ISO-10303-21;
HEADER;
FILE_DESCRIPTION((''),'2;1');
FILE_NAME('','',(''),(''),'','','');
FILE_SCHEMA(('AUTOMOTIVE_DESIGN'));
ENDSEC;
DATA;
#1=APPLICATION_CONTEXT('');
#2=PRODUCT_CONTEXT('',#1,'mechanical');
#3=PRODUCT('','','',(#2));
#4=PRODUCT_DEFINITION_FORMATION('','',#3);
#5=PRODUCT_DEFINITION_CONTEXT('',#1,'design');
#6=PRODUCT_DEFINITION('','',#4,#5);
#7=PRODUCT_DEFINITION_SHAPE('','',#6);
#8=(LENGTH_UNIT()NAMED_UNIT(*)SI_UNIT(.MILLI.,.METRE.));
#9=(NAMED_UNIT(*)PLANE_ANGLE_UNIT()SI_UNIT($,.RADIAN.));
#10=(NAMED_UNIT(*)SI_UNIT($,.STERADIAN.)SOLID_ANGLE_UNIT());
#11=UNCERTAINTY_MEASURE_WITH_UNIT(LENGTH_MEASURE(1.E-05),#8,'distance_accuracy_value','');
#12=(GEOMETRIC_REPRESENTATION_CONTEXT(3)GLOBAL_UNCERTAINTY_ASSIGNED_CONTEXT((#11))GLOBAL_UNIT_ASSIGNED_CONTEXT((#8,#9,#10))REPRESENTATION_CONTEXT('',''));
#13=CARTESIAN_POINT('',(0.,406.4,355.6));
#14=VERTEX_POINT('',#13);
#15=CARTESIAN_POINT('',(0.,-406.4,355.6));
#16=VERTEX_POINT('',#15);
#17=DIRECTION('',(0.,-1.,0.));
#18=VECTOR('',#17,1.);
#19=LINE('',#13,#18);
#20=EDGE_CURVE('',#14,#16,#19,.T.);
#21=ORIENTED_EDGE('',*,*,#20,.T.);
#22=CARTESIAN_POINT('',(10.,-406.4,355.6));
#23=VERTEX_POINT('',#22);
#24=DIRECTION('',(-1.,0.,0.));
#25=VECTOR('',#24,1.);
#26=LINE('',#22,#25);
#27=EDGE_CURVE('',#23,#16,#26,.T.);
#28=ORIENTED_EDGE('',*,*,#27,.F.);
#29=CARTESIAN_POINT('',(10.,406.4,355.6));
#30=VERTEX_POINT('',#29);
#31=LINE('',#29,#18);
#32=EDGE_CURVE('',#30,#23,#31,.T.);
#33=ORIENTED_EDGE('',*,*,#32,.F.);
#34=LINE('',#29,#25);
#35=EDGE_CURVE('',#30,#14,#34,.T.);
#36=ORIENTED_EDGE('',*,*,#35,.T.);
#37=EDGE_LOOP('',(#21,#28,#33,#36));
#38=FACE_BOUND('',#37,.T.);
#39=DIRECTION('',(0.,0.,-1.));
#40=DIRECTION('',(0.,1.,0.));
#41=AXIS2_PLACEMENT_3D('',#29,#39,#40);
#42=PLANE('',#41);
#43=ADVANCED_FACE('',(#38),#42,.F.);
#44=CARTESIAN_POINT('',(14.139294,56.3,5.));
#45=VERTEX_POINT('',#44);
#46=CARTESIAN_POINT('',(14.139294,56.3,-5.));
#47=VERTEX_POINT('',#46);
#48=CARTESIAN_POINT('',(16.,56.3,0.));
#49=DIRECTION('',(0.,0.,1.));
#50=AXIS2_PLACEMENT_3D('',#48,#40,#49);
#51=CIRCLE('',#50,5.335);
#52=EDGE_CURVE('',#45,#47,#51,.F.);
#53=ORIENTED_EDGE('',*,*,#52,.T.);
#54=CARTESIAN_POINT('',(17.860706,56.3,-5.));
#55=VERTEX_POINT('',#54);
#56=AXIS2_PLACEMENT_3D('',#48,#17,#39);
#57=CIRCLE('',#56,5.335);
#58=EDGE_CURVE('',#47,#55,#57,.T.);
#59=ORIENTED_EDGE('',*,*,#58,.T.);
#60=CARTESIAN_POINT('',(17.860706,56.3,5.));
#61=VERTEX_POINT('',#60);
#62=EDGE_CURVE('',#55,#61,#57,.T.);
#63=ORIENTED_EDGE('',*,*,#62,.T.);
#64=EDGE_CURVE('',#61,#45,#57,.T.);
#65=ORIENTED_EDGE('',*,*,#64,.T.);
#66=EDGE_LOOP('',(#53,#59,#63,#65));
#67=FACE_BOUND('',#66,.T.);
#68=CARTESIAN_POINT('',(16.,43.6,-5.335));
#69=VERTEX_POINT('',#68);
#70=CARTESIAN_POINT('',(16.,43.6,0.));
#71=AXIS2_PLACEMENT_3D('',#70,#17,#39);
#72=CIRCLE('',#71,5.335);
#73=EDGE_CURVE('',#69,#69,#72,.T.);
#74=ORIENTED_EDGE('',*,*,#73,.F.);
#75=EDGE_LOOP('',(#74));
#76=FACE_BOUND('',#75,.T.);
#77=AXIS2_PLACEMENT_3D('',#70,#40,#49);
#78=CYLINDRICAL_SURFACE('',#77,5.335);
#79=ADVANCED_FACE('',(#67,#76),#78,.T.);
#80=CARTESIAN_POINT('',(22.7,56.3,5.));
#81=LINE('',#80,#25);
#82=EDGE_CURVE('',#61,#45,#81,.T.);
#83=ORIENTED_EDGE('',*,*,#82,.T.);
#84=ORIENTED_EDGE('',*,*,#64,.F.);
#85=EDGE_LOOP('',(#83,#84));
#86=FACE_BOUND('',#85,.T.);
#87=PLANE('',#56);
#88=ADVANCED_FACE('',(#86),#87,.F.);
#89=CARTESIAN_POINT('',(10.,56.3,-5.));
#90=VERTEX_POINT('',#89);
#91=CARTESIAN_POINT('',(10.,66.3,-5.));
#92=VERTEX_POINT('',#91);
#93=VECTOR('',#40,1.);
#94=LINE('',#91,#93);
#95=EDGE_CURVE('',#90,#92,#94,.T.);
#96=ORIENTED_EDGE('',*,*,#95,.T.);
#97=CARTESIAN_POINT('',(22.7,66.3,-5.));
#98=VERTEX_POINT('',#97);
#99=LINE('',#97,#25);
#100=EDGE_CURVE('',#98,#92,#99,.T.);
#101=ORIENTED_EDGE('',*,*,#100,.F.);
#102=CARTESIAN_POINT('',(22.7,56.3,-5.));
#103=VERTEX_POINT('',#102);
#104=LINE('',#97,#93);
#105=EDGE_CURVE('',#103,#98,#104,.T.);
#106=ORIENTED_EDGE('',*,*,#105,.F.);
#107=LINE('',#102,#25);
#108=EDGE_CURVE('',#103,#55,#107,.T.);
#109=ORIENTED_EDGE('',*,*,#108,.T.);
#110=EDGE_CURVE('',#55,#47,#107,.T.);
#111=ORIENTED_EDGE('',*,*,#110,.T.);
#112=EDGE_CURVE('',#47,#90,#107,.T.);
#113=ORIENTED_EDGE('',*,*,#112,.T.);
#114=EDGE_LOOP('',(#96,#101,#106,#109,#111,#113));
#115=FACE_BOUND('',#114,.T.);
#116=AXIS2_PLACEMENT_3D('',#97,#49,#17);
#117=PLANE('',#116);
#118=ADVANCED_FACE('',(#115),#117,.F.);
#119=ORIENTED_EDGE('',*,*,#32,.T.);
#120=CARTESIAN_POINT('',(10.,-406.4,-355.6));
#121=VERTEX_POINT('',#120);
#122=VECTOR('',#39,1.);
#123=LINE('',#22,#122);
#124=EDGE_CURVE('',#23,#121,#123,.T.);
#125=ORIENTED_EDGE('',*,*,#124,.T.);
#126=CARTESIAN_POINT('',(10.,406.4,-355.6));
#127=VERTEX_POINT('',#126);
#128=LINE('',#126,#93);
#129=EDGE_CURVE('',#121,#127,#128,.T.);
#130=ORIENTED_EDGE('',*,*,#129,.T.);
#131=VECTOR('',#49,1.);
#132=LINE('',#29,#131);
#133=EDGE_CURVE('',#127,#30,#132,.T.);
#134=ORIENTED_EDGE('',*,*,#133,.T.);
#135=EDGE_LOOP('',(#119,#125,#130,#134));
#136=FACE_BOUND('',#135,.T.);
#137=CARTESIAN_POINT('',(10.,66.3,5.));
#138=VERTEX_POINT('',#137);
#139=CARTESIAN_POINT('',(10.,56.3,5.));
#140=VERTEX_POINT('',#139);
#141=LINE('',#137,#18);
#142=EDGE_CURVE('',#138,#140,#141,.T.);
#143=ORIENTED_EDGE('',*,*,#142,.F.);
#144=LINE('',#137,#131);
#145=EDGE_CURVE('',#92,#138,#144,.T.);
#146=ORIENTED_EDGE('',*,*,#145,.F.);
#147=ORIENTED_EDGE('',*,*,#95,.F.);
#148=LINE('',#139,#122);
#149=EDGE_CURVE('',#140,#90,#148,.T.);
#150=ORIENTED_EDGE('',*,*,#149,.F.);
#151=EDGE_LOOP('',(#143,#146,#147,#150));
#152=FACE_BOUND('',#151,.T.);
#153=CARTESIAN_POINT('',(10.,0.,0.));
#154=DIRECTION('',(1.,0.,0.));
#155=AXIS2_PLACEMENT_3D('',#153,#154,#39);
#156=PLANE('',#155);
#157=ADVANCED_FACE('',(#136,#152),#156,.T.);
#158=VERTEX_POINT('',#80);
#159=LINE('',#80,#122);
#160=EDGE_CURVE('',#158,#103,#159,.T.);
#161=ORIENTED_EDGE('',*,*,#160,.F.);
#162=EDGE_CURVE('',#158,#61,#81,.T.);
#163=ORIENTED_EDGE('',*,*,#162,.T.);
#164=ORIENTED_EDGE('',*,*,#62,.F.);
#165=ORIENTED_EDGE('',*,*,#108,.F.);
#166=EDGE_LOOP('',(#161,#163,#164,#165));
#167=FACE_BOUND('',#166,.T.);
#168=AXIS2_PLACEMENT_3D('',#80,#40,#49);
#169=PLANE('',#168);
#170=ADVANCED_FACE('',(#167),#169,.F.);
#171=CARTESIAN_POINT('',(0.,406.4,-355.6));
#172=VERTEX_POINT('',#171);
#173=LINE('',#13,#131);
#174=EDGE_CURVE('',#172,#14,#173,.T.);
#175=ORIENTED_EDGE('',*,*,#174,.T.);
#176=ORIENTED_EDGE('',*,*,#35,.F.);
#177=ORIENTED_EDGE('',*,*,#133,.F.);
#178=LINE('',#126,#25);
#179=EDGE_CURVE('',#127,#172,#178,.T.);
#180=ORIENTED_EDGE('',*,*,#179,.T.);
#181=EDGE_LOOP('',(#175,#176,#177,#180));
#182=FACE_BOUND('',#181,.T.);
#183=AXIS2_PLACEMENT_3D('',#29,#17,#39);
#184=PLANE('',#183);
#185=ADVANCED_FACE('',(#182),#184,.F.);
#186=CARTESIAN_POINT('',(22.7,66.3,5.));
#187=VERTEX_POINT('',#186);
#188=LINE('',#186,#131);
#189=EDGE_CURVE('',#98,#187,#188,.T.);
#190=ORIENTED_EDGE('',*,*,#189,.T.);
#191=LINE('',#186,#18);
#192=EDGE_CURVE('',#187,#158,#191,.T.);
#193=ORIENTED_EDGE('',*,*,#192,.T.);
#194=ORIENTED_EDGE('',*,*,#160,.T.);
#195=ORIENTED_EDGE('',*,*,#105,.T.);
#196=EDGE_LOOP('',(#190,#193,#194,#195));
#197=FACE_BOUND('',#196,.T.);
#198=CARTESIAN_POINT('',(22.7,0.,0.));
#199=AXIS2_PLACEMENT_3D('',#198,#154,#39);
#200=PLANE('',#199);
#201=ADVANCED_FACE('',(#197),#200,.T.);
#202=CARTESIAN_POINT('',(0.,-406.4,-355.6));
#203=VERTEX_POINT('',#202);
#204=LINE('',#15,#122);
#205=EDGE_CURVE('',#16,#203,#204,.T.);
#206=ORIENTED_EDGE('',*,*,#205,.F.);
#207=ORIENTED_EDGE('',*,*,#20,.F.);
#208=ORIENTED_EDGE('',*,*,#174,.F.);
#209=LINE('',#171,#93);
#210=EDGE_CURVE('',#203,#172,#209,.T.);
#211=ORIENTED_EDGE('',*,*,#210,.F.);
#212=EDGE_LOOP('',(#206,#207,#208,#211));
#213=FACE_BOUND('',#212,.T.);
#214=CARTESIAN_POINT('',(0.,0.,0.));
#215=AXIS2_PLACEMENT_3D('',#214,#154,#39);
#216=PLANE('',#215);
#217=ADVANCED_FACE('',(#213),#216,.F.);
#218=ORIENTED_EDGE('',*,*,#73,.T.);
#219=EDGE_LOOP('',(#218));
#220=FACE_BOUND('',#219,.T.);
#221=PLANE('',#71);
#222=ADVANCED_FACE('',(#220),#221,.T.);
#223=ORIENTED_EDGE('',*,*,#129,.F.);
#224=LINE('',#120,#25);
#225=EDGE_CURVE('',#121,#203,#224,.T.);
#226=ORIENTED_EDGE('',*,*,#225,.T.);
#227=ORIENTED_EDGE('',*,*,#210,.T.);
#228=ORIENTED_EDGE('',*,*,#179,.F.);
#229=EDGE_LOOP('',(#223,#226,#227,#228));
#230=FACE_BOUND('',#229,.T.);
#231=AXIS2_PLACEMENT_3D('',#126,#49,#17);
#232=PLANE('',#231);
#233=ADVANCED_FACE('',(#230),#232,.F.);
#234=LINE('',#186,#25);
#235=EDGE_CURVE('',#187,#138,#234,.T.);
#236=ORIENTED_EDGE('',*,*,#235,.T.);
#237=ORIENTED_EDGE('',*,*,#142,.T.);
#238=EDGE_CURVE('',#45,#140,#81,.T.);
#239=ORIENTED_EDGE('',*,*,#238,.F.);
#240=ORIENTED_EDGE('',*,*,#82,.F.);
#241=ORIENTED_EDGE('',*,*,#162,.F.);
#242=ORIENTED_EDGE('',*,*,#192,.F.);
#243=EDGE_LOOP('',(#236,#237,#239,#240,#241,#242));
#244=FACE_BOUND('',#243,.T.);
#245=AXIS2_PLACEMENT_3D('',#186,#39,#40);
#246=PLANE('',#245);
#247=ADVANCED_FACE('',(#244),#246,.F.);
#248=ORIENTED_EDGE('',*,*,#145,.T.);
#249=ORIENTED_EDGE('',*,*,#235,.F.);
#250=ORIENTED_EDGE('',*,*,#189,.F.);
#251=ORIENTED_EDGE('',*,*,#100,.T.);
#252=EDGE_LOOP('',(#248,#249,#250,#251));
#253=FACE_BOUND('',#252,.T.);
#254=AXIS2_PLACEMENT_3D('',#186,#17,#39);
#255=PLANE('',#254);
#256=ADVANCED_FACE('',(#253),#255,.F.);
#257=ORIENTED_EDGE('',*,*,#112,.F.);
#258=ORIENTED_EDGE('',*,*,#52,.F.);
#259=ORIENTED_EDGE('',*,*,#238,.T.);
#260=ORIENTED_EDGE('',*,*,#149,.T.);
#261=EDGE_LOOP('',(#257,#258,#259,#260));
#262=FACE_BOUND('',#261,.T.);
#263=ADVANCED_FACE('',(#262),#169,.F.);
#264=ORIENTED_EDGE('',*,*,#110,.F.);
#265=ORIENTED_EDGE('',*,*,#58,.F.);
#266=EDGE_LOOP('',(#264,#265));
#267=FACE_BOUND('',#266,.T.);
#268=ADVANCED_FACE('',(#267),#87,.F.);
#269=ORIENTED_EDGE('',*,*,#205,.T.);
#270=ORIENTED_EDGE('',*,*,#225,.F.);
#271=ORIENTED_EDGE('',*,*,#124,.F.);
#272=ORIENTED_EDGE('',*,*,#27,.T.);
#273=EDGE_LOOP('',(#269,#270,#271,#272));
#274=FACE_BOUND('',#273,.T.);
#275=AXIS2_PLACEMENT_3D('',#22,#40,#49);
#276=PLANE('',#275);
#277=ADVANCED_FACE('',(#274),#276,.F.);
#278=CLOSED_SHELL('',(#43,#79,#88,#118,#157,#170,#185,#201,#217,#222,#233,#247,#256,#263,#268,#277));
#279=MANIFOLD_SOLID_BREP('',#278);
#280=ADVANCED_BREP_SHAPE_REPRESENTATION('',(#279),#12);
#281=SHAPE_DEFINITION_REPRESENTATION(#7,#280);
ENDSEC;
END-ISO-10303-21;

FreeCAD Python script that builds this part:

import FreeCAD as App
import Part
import Sketcher
Q = App.Units.Quantity

doc = App.newDocument("Part")
params = doc.addObject("Spreadsheet::Sheet", "Params")
for row, (alias, value) in enumerate([
    ("sketch1_width", "32 in"),
    ("sketch1_height", "28 in"),
    ("pad1_length", "10 mm"),
    ("pad2_length", "0.5 in"),
    ("pad3_length", "0.5 in"),
], start=1):
    params.set(f"A{row}", alias)
    params.set(f"B{row}", "=" + value)
    params.setAlias(f"B{row}", alias)

body = doc.addObject("PartDesign::Body", "Body")

# Sketch on YZ plane
sketch1 = body.newObject("Sketcher::SketchObject", "Sketch")
sketch1.AttachmentSupport = (doc.getObject("YZ_Plane"), [""])
sketch1.MapMode = "FlatFace"
sketch1.addGeometry(Part.LineSegment(App.Vector(406, 356, 0), App.Vector(-406, 356, 0)), False)
sketch1.addGeometry(Part.LineSegment(App.Vector(-406, 356, 0), App.Vector(-406, -356, 0)), False)
sketch1.addGeometry(Part.LineSegment(App.Vector(-406, -356, 0), App.Vector(406, -356, 0)), False)
sketch1.addGeometry(Part.LineSegment(App.Vector(406, -356, 0), App.Vector(406, 356, 0)), False)
sketch1.addConstraint(Sketcher.Constraint("Coincident", 0, 2, 1, 1))
sketch1.addConstraint(Sketcher.Constraint("Coincident", 1, 2, 2, 1))
sketch1.addConstraint(Sketcher.Constraint("Coincident", 2, 2, 3, 1))
sketch1.addConstraint(Sketcher.Constraint("Coincident", 3, 2, 0, 1))
sketch1.addConstraint(Sketcher.Constraint("Horizontal", 0))
sketch1.addConstraint(Sketcher.Constraint("Vertical", 1))
sketch1.addConstraint(Sketcher.Constraint("Horizontal", 2))
sketch1.addConstraint(Sketcher.Constraint("Vertical", 3))
sketch1.addConstraint(Sketcher.Constraint("Symmetric", 0, 2, 2, 2, -1, 1))
sketch1.addConstraint(Sketcher.Constraint("DistanceX", 0, 2, 0, 1, Q("32 in")))
sketch1.addConstraint(Sketcher.Constraint("DistanceY", 1, 2, 1, 1, Q("28 in")))
sketch1.setExpression("Constraints[9]", "Params.sketch1_width")
sketch1.setExpression("Constraints[10]", "Params.sketch1_height")
pad1 = body.newObject("PartDesign::Pad", "Pad")
pad1.Profile = sketch1
pad1.setExpression("Length", "Params.pad1_length")

# Sketch on YZ plane
sketch2 = body.newObject("Sketcher::SketchObject", "Sketch001")
sketch2.AttachmentSupport = (doc.getObject("YZ_Plane"), [""])
sketch2.MapMode = "FlatFace"
sketch2.AttachmentOffset = App.Placement(App.Vector(0, 0, 10), App.Rotation())
sketch2.addGeometry(Part.LineSegment(App.Vector(66, 5, 0), App.Vector(56, 5, 0)), False)
sketch2.addGeometry(Part.LineSegment(App.Vector(56, 5, 0), App.Vector(56, -5, 0)), False)
sketch2.addGeometry(Part.LineSegment(App.Vector(56, -5, 0), App.Vector(66, -5, 0)), False)
sketch2.addGeometry(Part.LineSegment(App.Vector(66, -5, 0), App.Vector(66, 5, 0)), False)
sketch2.addConstraint(Sketcher.Constraint("Coincident", 0, 2, 1, 1))
sketch2.addConstraint(Sketcher.Constraint("Coincident", 1, 2, 2, 1))
sketch2.addConstraint(Sketcher.Constraint("Coincident", 2, 2, 3, 1))
sketch2.addConstraint(Sketcher.Constraint("Coincident", 3, 2, 0, 1))
sketch2.addConstraint(Sketcher.Constraint("Horizontal", 0))
sketch2.addConstraint(Sketcher.Constraint("Vertical", 1))
sketch2.addConstraint(Sketcher.Constraint("Horizontal", 2))
sketch2.addConstraint(Sketcher.Constraint("Vertical", 3))
sketch2.addConstraint(Sketcher.Constraint("Equal", 2, 1))
sketch2.addConstraint(Sketcher.Constraint("DistanceX", 0, 2, 0, 1, Q("10 mm")))
sketch2.addConstraint(Sketcher.Constraint("DistanceX", -1, 1, 0, 2, Q("56.3 mm")))
sketch2.addConstraint(Sketcher.Constraint("DistanceY", -1, 1, 0, 2, Q("5 mm")))
pad2 = body.newObject("PartDesign::Pad", "Pad001")
pad2.Profile = sketch2
pad2.setExpression("Length", "Params.pad2_length")

# Sketch on XZ plane
sketch3 = body.newObject("Sketcher::SketchObject", "Sketch002")
sketch3.AttachmentSupport = (doc.getObject("XZ_Plane"), [""])
sketch3.MapMode = "FlatFace"
sketch3.AttachmentOffset = App.Placement(App.Vector(0, 0, -56.3), App.Rotation())
sketch3.addGeometry(Part.Circle(App.Vector(16, 0, 0), App.Vector(0, 0, 1), 5), False)
sketch3.addConstraint(Sketcher.Constraint("PointOnObject", 0, 3, -1))
sketch3.addConstraint(Sketcher.Constraint("Diameter", 0, Q("10.67 mm")))
sketch3.addConstraint(Sketcher.Constraint("DistanceX", -1, 1, 0, 3, Q("16 mm")))
pad3 = body.newObject("PartDesign::Pad", "Pad002")
pad3.Profile = sketch3
pad3.setExpression("Length", "Params.pad3_length")

doc.recompute()
